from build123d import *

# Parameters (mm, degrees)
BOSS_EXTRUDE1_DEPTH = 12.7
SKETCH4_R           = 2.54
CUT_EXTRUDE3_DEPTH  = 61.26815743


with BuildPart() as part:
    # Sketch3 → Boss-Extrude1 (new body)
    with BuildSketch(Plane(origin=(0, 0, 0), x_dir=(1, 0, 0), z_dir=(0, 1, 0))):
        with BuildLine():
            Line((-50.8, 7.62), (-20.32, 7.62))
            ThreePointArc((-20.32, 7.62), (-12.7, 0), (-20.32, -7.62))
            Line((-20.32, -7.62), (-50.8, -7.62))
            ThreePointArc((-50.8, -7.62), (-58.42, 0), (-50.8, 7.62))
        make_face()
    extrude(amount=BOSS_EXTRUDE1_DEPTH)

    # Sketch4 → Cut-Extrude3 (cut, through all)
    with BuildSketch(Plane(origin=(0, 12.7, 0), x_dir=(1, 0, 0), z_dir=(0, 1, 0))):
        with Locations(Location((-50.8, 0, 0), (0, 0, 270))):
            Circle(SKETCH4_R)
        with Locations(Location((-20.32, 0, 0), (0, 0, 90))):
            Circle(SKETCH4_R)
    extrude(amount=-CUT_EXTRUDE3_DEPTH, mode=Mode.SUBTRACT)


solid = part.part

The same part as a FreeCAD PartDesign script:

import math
import FreeCAD as App
import Part
import Sketcher
from FreeCAD import Vector
Q = App.Units.Quantity

doc = App.newDocument("Part")
body = doc.addObject("PartDesign::Body", "Body")

# Sketch on XZ plane
sketch1 = body.newObject("Sketcher::SketchObject", "Sketch")
sketch1.AttachmentSupport = (doc.getObject("XZ_Plane"), [""])
sketch1.MapMode = "FlatFace"
sketch1.addGeometry([
    Part.LineSegment(Vector(-20, -8, 0), Vector(-51, -8, 0)),
    Part.ArcOfCircle(Part.Circle(Vector(-51, 0, 0), Vector(0, 0, 1), 8), math.radians(90), math.radians(270)),
    Part.LineSegment(Vector(-51, 8, 0), Vector(-20, 8, 0)),
    Part.ArcOfCircle(Part.Circle(Vector(-20, 0, 0), Vector(0, 0, 1), 8), math.radians(-90), math.radians(90)),
], False)
sketch1.addConstraint([
    Sketcher.Constraint("Tangent", 0, 2, 1, 2),
    Sketcher.Constraint("Tangent", 1, 1, 2, 1),
    Sketcher.Constraint("Tangent", 2, 2, 3, 2),
    Sketcher.Constraint("Tangent", 3, 1, 0, 1),
    Sketcher.Constraint("Horizontal", 0),
    Sketcher.Constraint("Horizontal", 2),
    Sketcher.Constraint("PointOnObject", 1, 3, -1),
    Sketcher.Constraint("Radius", 1, Q("0.3 in")),
    Sketcher.Constraint("DistanceX", 0, 2, 0, 1, Q("1.2 in")),
    Sketcher.Constraint("DistanceX", 1, 3, -1, 1, Q("2 in")),
])
pad1 = body.newObject("PartDesign::Pad", "Pad")
pad1.Profile = sketch1
pad1.Length = Q("0.5 in")
pad1.Reversed = True

# Sketch on XZ plane
sketch2 = body.newObject("Sketcher::SketchObject", "Sketch001")
sketch2.AttachmentSupport = (doc.getObject("XZ_Plane"), [""])
sketch2.MapMode = "FlatFace"
sketch2.AttachmentOffset = App.Placement(Vector(0, 0, -0.5 * 25.4), App.Rotation())
sketch2.addGeometry([
    Part.Circle(Vector(-50.8, 0, 0), Vector(0, 0, 1), 2.5),
    Part.Circle(Vector(-20.3, 0, 0), Vector(0, 0, 1), 2.5),
], False)
sketch2.addConstraint([
    Sketcher.Constraint("Equal", 0, 1),
    Sketcher.Constraint("PointOnObject", 0, 3, -1),
    Sketcher.Constraint("PointOnObject", 1, 3, -1),
    Sketcher.Constraint("Diameter", 0, Q("0.2 in")),
    Sketcher.Constraint("DistanceX", 0, 3, -1, 1, Q("2 in")),
    Sketcher.Constraint("DistanceX", 1, 3, -1, 1, Q("0.8 in")),
])
pocket1 = body.newObject("PartDesign::Pocket", "Pocket")
pocket1.Profile = sketch2
pocket1.Type = "ThroughAll"
pocket1.Reversed = True

doc.recompute()
